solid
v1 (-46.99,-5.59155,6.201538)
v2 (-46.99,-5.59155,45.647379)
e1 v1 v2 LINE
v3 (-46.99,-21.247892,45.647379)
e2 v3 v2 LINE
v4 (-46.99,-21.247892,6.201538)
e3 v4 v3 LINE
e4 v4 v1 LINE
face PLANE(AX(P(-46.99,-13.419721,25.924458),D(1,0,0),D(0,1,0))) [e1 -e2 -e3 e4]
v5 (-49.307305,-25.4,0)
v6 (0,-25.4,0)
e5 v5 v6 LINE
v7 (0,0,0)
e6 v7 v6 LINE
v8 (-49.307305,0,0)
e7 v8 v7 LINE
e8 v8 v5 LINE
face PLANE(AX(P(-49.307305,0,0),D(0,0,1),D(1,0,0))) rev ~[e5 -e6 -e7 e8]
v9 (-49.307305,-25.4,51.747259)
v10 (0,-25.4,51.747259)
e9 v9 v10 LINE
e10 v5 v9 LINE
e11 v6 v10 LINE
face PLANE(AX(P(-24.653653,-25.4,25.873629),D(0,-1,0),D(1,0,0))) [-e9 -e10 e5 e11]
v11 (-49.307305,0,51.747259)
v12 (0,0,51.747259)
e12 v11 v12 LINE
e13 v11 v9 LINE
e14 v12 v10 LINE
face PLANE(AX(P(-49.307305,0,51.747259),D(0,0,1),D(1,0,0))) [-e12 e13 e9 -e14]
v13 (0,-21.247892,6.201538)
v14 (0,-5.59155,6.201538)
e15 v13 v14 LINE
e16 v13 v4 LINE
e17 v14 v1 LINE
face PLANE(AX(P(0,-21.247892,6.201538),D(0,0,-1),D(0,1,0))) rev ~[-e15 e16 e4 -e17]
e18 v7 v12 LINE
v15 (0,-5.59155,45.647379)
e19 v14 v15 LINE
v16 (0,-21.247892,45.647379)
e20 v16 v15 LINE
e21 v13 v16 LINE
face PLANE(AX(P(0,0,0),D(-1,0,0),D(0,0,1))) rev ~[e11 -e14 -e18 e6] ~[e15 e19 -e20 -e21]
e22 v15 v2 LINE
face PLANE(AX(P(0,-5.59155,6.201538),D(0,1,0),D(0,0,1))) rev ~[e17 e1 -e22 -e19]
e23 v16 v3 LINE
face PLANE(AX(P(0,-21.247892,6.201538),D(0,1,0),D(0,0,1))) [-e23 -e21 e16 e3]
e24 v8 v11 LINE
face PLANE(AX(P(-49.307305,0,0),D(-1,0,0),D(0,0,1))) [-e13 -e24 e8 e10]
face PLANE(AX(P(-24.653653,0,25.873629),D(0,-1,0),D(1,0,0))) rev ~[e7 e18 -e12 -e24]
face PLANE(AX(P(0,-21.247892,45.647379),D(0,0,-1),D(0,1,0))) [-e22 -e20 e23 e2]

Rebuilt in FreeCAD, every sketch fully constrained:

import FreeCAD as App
import Part
import Sketcher
Q = App.Units.Quantity

doc = App.newDocument("Part")
params = doc.addObject("Spreadsheet::Sheet", "Params")
for row, (alias, value) in enumerate([
    ("pad1_length", "1 in"),
    ("pocket1_length", "1.85 in"),
], start=1):
    params.set(f"A{row}", alias)
    params.set(f"B{row}", "=" + value)
    params.setAlias(f"B{row}", alias)

body = doc.addObject("PartDesign::Body", "Body")

# Sketch on XZ plane
sketch1 = body.newObject("Sketcher::SketchObject", "Sketch")
sketch1.AttachmentSupport = (doc.getObject("XZ_Plane"), [""])
sketch1.MapMode = "FlatFace"
sketch1.addGeometry(Part.LineSegment(App.Vector(-49, 52, 0), App.Vector(-49, 0, 0)), False)
sketch1.addGeometry(Part.LineSegment(App.Vector(-49, 0, 0), App.Vector(0, 0, 0)), False)
sketch1.addGeometry(Part.LineSegment(App.Vector(0, 0, 0), App.Vector(0, 52, 0)), False)
sketch1.addGeometry(Part.LineSegment(App.Vector(0, 52, 0), App.Vector(-49, 52, 0)), False)
sketch1.addConstraint(Sketcher.Constraint("Coincident", 0, 2, 1, 1))
sketch1.addConstraint(Sketcher.Constraint("Coincident", 1, 2, 2, 1))
sketch1.addConstraint(Sketcher.Constraint("Coincident", 2, 2, 3, 1))
sketch1.addConstraint(Sketcher.Constraint("Coincident", 3, 2, 0, 1))
sketch1.addConstraint(Sketcher.Constraint("Vertical", 0))
sketch1.addConstraint(Sketcher.Constraint("Horizontal", 1))
sketch1.addConstraint(Sketcher.Constraint("Vertical", 2))
sketch1.addConstraint(Sketcher.Constraint("Horizontal", 3))
sketch1.addConstraint(Sketcher.Constraint("Coincident", 1, 2, -1, 1))
sketch1.addConstraint(Sketcher.Constraint("DistanceY", 0, 2, 0, 1, Q("51.747259 mm")))
sketch1.addConstraint(Sketcher.Constraint("DistanceX", 1, 1, 1, 2, Q("49.307305 mm")))
pad1 = body.newObject("PartDesign::Pad", "Pad")
pad1.Profile = sketch1
pad1.setExpression("Length", "Params.pad1_length")

# Sketch on YZ plane
sketch2 = body.newObject("Sketcher::SketchObject", "Sketch001")
sketch2.AttachmentSupport = (doc.getObject("YZ_Plane"), [""])
sketch2.MapMode = "FlatFace"
sketch2.addGeometry(Part.LineSegment(App.Vector(-21, 46, 0), App.Vector(-21, 6, 0)), False)
sketch2.addGeometry(Part.LineSegment(App.Vector(-21, 6, 0), App.Vector(-6, 6, 0)), False)
sketch2.addGeometry(Part.LineSegment(App.Vector(-6, 6, 0), App.Vector(-6, 46, 0)), False)
sketch2.addGeometry(Part.LineSegment(App.Vector(-6, 46, 0), App.Vector(-21, 46, 0)), False)
sketch2.addConstraint(Sketcher.Constraint("Coincident", 0, 2, 1, 1))
sketch2.addConstraint(Sketcher.Constraint("Coincident", 1, 2, 2, 1))
sketch2.addConstraint(Sketcher.Constraint("Coincident", 2, 2, 3, 1))
sketch2.addConstraint(Sketcher.Constraint("Coincident", 3, 2, 0, 1))
sketch2.addConstraint(Sketcher.Constraint("Vertical", 0))
sketch2.addConstraint(Sketcher.Constraint("Horizontal", 1))
sketch2.addConstraint(Sketcher.Constraint("Vertical", 2))
sketch2.addConstraint(Sketcher.Constraint("Horizontal", 3))
sketch2.addConstraint(Sketcher.Constraint("DistanceX", 1, 1, 1, 2, Q("15.656342 mm")))
sketch2.addConstraint(Sketcher.Constraint("DistanceY", 0, 2, 0, 1, Q("39.445841 mm")))
sketch2.addConstraint(Sketcher.Constraint("DistanceX", 0, 2, -1, 1, Q("21.247892 mm")))
sketch2.addConstraint(Sketcher.Constraint("DistanceY", -1, 1, 2, 2, Q("45.647379 mm")))
pocket1 = body.newObject("PartDesign::Pocket", "Pocket")
pocket1.Profile = sketch2
pocket1.setExpression("Length", "Params.pocket1_length")

doc.recompute()
